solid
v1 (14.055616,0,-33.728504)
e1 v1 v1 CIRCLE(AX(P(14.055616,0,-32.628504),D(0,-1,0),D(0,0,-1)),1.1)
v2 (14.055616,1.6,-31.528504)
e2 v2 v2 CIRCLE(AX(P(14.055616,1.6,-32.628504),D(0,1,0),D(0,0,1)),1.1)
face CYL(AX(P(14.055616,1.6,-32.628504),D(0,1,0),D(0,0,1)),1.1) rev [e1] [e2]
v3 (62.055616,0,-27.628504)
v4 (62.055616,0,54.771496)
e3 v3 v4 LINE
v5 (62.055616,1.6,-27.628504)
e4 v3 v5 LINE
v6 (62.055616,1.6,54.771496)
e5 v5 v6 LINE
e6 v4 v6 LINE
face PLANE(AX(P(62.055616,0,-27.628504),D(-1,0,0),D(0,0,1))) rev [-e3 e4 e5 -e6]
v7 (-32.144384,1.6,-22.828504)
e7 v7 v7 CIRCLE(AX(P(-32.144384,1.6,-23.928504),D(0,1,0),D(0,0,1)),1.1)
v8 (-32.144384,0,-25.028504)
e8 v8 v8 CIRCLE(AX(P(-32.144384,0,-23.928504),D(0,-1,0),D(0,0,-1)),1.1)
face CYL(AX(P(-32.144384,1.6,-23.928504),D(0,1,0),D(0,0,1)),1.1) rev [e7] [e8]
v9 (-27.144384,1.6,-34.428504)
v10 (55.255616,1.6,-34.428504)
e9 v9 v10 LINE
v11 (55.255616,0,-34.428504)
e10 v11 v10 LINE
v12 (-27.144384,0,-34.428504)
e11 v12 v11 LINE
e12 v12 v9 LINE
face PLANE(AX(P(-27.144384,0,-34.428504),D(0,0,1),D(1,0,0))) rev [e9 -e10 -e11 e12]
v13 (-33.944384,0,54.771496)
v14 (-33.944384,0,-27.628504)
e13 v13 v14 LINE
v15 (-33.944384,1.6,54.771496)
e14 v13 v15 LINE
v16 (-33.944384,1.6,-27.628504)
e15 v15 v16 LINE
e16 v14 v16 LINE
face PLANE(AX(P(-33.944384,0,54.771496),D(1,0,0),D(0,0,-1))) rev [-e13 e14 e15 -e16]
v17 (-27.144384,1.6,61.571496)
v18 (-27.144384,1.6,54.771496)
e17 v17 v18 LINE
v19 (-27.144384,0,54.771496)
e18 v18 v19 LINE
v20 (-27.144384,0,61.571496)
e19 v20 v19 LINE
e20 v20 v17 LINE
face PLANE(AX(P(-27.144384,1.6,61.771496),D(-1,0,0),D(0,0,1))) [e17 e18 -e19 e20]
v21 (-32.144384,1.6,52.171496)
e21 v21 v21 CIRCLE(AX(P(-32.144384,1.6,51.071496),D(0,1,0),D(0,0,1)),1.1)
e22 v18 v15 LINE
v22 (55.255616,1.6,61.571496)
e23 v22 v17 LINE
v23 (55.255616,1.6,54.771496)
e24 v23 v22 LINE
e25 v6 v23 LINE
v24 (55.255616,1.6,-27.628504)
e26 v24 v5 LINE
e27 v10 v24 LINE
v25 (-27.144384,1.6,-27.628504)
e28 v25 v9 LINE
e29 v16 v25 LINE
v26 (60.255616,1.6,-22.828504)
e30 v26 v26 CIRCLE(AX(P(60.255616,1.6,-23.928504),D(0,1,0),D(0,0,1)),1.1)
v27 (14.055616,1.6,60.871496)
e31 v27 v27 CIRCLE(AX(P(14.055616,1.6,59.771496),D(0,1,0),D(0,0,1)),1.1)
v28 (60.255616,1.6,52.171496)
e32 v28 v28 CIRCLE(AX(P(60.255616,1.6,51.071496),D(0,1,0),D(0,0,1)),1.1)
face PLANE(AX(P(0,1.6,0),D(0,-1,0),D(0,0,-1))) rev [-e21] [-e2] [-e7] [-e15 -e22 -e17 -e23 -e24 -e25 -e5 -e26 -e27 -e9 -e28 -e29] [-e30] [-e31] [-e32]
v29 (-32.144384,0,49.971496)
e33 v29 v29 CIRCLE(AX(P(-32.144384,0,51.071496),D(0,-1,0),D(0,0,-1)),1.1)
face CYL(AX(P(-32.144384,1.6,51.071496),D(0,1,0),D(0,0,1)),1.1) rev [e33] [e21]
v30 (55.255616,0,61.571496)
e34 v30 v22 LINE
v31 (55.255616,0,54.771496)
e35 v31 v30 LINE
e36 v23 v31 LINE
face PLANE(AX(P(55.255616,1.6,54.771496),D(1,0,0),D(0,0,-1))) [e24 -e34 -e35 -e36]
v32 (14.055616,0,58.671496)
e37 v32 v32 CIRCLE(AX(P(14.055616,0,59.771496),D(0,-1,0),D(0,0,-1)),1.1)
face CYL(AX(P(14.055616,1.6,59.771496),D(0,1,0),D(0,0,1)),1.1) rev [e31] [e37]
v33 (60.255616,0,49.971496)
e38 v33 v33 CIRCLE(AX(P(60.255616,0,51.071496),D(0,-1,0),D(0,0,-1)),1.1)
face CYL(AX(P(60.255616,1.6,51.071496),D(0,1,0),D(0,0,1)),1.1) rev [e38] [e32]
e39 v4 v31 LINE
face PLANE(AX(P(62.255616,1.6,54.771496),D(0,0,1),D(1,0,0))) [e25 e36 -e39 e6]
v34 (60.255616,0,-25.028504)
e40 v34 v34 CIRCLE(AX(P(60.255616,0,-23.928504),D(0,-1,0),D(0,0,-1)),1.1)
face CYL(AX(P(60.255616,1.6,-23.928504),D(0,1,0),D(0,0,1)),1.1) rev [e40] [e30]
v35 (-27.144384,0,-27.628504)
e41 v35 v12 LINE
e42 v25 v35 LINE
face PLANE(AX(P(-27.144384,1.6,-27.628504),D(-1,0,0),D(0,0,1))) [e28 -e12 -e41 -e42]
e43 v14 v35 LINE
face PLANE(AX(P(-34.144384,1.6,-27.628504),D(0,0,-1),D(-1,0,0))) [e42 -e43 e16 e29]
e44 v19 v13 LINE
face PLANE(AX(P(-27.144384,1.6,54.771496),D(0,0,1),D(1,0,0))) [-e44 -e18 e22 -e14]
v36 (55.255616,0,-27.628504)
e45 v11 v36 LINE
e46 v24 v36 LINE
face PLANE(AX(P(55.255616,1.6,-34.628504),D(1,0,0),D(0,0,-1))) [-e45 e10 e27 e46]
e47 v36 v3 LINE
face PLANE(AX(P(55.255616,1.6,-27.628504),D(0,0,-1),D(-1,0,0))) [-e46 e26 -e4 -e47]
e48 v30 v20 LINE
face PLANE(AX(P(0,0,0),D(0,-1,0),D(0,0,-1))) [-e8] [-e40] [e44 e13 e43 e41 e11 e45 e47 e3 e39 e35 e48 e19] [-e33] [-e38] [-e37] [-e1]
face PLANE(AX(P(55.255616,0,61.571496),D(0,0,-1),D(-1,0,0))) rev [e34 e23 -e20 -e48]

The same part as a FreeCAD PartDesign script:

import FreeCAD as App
import Part
import Sketcher
Q = App.Units.Quantity


def add_polygon(sketch, points):
    """Adds a closed chain of lines whose ends are joined by coincident constraints."""
    first, n = sketch.GeometryCount, len(points)
    for a, b in zip(points, points[1:] + points[:1]):
        sketch.addGeometry(Part.LineSegment(App.Vector(*a, 0), App.Vector(*b, 0)), False)
    for i in range(n):
        sketch.addConstraint(Sketcher.Constraint("Coincident", first + i, 2, first + (i + 1) % n, 1))

doc = App.newDocument("Part")
body = doc.addObject("PartDesign::Body", "Body")

sketch1 = body.newObject("Sketcher::SketchObject", "Sketch")
sketch1.AttachmentSupport = (doc.getObject("XZ_Plane"), [""])
sketch1.MapMode = "FlatFace"
add_polygon(sketch1, [(-27.144384, -27.628504), (-34.144384, -27.628504), (-34.144384, 54.771496), (-27.144384, 54.771496), (-27.144384, 61.771496), (55.255616, 61.771496), (55.255616, 54.771496), (62.255616, 54.771496), (62.255616, -27.628504), (55.255616, -27.628504), (55.255616, -34.628504), (-27.144384, -34.628504)])
sketch1.addConstraint(Sketcher.Constraint("Horizontal", 0))
sketch1.addConstraint(Sketcher.Constraint("Vertical", 1))
sketch1.addConstraint(Sketcher.Constraint("Horizontal", 2))
sketch1.addConstraint(Sketcher.Constraint("Vertical", 3))
sketch1.addConstraint(Sketcher.Constraint("Horizontal", 4))
sketch1.addConstraint(Sketcher.Constraint("Vertical", 5))
sketch1.addConstraint(Sketcher.Constraint("Horizontal", 6))
sketch1.addConstraint(Sketcher.Constraint("Vertical", 7))
sketch1.addConstraint(Sketcher.Constraint("Horizontal", 8))
sketch1.addConstraint(Sketcher.Constraint("Vertical", 9))
sketch1.addConstraint(Sketcher.Constraint("Horizontal", 10))
sketch1.addConstraint(Sketcher.Constraint("Vertical", 11))
sketch1.addConstraint(Sketcher.Constraint("Horizontal", 2, 2, 5, 2))
sketch1.addConstraint(Sketcher.Constraint("Horizontal", 0, 2, 7, 2))
sketch1.addConstraint(Sketcher.Constraint("Vertical", 5, 2, 8, 2))
sketch1.addConstraint(Sketcher.Constraint("Vertical", 3, 2, 10, 2))
sketch1.addConstraint(Sketcher.Constraint("Equal", 2, 6))
sketch1.addConstraint(Sketcher.Constraint("Equal", 10, 1))
sketch1.addConstraint(Sketcher.Constraint("Equal", 8, 3))
sketch1.addConstraint(Sketcher.Constraint("Equal", 5, 9))
sketch1.addConstraint(Sketcher.Constraint("DistanceX", 0, 2, 0, 1, Q("7 mm")))
sketch1.addConstraint(Sketcher.Constraint("DistanceX", 4, 1, 4, 2, Q("82.4 mm")))
sketch1.addConstraint(Sketcher.Constraint("DistanceX", 0, 2, -1, 1, Q("34.144384 mm")))
sketch1.addConstraint(Sketcher.Constraint("DistanceY", 0, 2, -1, 1, Q("27.628504 mm")))
pad1 = body.newObject("PartDesign::Pad", "Pad")
pad1.Profile = sketch1
pad1.Length = 1.6
pad1.Reversed = True

sketch2 = body.newObject("Sketcher::SketchObject", "Sketch001")
sketch2.AttachmentSupport = (doc.getObject("XZ_Plane"), [""])
sketch2.MapMode = "FlatFace"
sketch2.AttachmentOffset = App.Placement(App.Vector(0, 0, -1.6), App.Rotation())
sketch2.addGeometry(Part.Circle(App.Vector(14.055616, -32.628504, 0), App.Vector(0, 0, 1), 1.1), False)
sketch2.addGeometry(Part.Circle(App.Vector(14.055616, 59.771496, 0), App.Vector(0, 0, 1), 1.1), False)
sketch2.addGeometry(Part.Circle(App.Vector(-32.144384, 51.071496, 0), App.Vector(0, 0, 1), 1.1), False)
sketch2.addGeometry(Part.Circle(App.Vector(60.255616, -23.928504, 0), App.Vector(0, 0, 1), 1.1), False)
sketch2.addGeometry(Part.Circle(App.Vector(-32.144384, -23.928504, 0), App.Vector(0, 0, 1), 1.1), False)
sketch2.addGeometry(Part.Circle(App.Vector(60.255616, 51.071496, 0), App.Vector(0, 0, 1), 1.1), False)
sketch2.addConstraint(Sketcher.Constraint("Equal", 0, 1))
sketch2.addConstraint(Sketcher.Constraint("Equal", 1, 2))
sketch2.addConstraint(Sketcher.Constraint("Equal", 2, 3))
sketch2.addConstraint(Sketcher.Constraint("Equal", 3, 4))
sketch2.addConstraint(Sketcher.Constraint("Equal", 4, 5))
sketch2.addConstraint(Sketcher.Constraint("Horizontal", 3, 3, 4, 3))
sketch2.addConstraint(Sketcher.Constraint("Horizontal", 2, 3, 5, 3))
sketch2.addConstraint(Sketcher.Constraint("Vertical", 0, 3, 1, 3))
sketch2.addConstraint(Sketcher.Constraint("Vertical", 2, 3, 4, 3))
sketch2.addConstraint(Sketcher.Constraint("Vertical", 3, 3, 5, 3))
sketch2.addConstraint(Sketcher.Constraint("Diameter", 0, Q("2.2 mm")))
sketch2.addConstraint(Sketcher.Constraint("DistanceY", 3, 3, 2, 3, Q("75 mm")))
sketch2.addConstraint(Sketcher.Constraint("DistanceY", 0, 3, 1, 3, Q("92.4 mm")))
sketch2.addConstraint(Sketcher.Constraint("DistanceX", 2, 3, 1, 3, Q("46.2 mm")))
sketch2.addConstraint(Sketcher.Constraint("DistanceY", 2, 3, 1, 3, Q("8.7 mm")))
sketch2.addConstraint(Sketcher.Constraint("DistanceX", 0, 3, 3, 3, Q("46.2 mm")))
sketch2.addConstraint(Sketcher.Constraint("DistanceX", -1, 1, 0, 3, Q("14.055616 mm")))
sketch2.addConstraint(Sketcher.Constraint("DistanceY", 0, 3, -1, 1, Q("32.628504 mm")))
doc.recompute()
hole = body.newObject("PartDesign::Hole", "Hole")
hole.Profile = sketch2
hole.ThreadType = "None"
hole.Diameter = 2.2
hole.DepthType = "Dimension"
hole.Depth = 5
hole.DrillPoint = "Flat"
hole.Reversed = True

sketch3 = body.newObject("Sketcher::SketchObject", "Sketch002")
sketch3.AttachmentSupport = (doc.getObject("XZ_Plane"), [""])
sketch3.MapMode = "FlatFace"
sketch3.AttachmentOffset = App.Placement(App.Vector(0, 0, -1.6), App.Rotation())
add_polygon(sketch3, [(-27.144384, -34.628504), (-27.144384, -34.428504), (55.255616, -34.428504), (55.255616, -34.628504)])
add_polygon(sketch3, [(62.055616, -27.628504), (62.055616, 54.771496), (62.255616, 54.771496), (62.255616, -27.628504)])
add_polygon(sketch3, [(-27.144384, 61.571496), (-27.144384, 61.771496), (55.255616, 61.771496), (55.255616, 61.571496)])
add_polygon(sketch3, [(-34.144384, -27.628504), (-34.144384, 54.771496), (-33.944384, 54.771496), (-33.944384, -27.628504)])
sketch3.addConstraint(Sketcher.Constraint("Vertical", 0))
sketch3.addConstraint(Sketcher.Constraint("Horizontal", 1))
sketch3.addConstraint(Sketcher.Constraint("Vertical", 2))
sketch3.addConstraint(Sketcher.Constraint("Horizontal", 3))
sketch3.addConstraint(Sketcher.Constraint("Vertical", 4))
sketch3.addConstraint(Sketcher.Constraint("Horizontal", 5))
sketch3.addConstraint(Sketcher.Constraint("Vertical", 6))
sketch3.addConstraint(Sketcher.Constraint("Horizontal", 7))
sketch3.addConstraint(Sketcher.Constraint("Vertical", 8))
sketch3.addConstraint(Sketcher.Constraint("Horizontal", 9))
sketch3.addConstraint(Sketcher.Constraint("Vertical", 10))
sketch3.addConstraint(Sketcher.Constraint("Horizontal", 11))
sketch3.addConstraint(Sketcher.Constraint("Vertical", 12))
sketch3.addConstraint(Sketcher.Constraint("Horizontal", 13))
sketch3.addConstraint(Sketcher.Constraint("Vertical", 14))
sketch3.addConstraint(Sketcher.Constraint("Horizontal", 15))
sketch3.addConstraint(Sketcher.Constraint("Horizontal", 5, 2, 12, 2))
sketch3.addConstraint(Sketcher.Constraint("Horizontal", 7, 2, 14, 2))
sketch3.addConstraint(Sketcher.Constraint("Vertical", 3, 2, 8, 2))
sketch3.addConstraint(Sketcher.Constraint("Vertical", 2, 2, 9, 2))
sketch3.addConstraint(Sketcher.Constraint("Equal", 7, 13))
sketch3.addConstraint(Sketcher.Constraint("Equal", 15, 0))
sketch3.addConstraint(Sketcher.Constraint("Equal", 11, 4))
sketch3.addConstraint(Sketcher.Constraint("Equal", 2, 8))
sketch3.addConstraint(Sketcher.Constraint("DistanceX", 1, 1, 1, 2, Q("82.4 mm")))
sketch3.addConstraint(Sketcher.Constraint("DistanceX", 5, 1, 5, 2, Q("0.2 mm")))
sketch3.addConstraint(Sketcher.Constraint("DistanceX", 1, 2, 5, 2, Q("7 mm")))
sketch3.addConstraint(Sketcher.Constraint("DistanceY", 2, 2, 6, 2, Q("7 mm")))
sketch3.addConstraint(Sketcher.Constraint("DistanceY", 4, 2, 8, 2, Q("7 mm")))
sketch3.addConstraint(Sketcher.Constraint("DistanceX", 12, 2, 11, 2, Q("7 mm")))
sketch3.addConstraint(Sketcher.Constraint("DistanceX", 0, 2, -1, 1, Q("27.144384 mm")))
sketch3.addConstraint(Sketcher.Constraint("DistanceY", 0, 2, -1, 1, Q("34.428504 mm")))
pocket1 = body.newObject("PartDesign::Pocket", "Pocket")
pocket1.Profile = sketch3
pocket1.Type = "ThroughAll"
pocket1.Reversed = True

doc.recompute()
